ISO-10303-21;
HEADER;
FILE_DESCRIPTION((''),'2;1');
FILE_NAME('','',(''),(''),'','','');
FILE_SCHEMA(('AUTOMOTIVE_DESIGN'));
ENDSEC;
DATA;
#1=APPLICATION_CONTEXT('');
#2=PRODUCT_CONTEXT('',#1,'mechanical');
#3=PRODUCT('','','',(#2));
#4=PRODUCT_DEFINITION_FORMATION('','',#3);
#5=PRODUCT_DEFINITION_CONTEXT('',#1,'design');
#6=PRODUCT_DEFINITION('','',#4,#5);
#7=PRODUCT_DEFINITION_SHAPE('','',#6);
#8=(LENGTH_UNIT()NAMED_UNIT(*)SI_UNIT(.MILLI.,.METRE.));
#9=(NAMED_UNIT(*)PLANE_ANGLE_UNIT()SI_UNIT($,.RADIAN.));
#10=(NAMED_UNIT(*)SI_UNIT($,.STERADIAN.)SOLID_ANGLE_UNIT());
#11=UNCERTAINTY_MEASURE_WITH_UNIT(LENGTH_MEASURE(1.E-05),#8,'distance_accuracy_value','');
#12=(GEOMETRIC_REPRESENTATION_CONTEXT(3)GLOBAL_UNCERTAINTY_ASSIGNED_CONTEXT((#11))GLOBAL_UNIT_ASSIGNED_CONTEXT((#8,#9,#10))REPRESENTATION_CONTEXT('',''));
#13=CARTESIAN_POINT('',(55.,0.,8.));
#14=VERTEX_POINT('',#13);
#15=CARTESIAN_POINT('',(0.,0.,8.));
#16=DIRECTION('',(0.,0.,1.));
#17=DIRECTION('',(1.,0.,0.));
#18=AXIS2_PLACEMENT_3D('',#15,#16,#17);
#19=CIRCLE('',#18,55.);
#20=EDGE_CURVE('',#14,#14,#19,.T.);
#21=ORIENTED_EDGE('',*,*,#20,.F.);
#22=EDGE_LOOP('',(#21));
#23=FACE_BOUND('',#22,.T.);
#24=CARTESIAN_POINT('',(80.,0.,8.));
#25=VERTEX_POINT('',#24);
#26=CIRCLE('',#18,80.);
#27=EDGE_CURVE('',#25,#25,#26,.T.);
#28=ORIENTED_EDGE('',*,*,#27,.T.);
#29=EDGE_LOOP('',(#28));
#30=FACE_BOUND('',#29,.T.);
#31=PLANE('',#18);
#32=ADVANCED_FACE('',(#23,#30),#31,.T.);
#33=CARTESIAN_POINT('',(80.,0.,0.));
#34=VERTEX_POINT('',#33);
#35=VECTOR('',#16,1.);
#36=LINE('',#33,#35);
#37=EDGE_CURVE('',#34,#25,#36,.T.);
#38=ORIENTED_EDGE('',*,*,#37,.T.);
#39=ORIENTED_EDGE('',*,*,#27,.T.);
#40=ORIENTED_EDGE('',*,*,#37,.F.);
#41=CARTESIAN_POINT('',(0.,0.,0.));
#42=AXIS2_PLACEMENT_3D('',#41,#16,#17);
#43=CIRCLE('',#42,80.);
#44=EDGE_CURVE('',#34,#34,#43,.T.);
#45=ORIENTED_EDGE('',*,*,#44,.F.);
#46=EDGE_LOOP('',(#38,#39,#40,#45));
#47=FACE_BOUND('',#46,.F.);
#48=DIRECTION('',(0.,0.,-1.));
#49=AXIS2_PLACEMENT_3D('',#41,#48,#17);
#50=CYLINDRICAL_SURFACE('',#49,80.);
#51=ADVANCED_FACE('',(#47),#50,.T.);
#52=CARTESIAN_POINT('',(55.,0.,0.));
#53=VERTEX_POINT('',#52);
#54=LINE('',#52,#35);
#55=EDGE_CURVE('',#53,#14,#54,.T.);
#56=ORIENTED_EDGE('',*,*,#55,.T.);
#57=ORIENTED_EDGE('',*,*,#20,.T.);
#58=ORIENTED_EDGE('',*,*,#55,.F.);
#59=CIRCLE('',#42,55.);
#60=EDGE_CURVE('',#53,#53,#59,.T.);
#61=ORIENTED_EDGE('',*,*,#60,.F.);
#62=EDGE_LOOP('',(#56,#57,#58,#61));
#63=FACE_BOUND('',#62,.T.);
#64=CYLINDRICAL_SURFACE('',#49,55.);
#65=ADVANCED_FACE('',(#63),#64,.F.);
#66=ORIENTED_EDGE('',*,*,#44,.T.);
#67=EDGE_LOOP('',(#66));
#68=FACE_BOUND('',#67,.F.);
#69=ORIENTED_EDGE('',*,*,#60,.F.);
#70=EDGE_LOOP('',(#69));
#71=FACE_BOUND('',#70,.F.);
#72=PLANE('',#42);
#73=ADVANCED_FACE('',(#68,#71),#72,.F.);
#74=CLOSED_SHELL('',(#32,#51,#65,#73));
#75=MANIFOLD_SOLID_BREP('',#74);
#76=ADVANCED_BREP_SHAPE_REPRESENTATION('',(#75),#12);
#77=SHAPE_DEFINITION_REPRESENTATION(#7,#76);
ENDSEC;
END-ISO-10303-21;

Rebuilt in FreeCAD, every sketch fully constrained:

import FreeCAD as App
import Part
import Sketcher

doc = App.newDocument("Part")
params = doc.addObject("Spreadsheet::Sheet", "Params")
for row, (alias, value) in enumerate([
    ("sketch1_diameter", "160 mm"),
    ("sketch1_diameter2", "110 mm"),
    ("pad1_length", "8 mm"),
], start=1):
    params.set(f"A{row}", alias)
    params.set(f"B{row}", "=" + value)
    params.setAlias(f"B{row}", alias)

body = doc.addObject("PartDesign::Body", "Body")

sketch1 = body.newObject("Sketcher::SketchObject", "Sketch")
sketch1.AttachmentSupport = (doc.getObject("XY_Plane"), [""])
sketch1.MapMode = "FlatFace"
sketch1.addGeometry([
    Part.Circle(App.Vector(0, 0, 0), App.Vector(0, 0, 1), 80),
    Part.Circle(App.Vector(0, 0, 0), App.Vector(0, 0, 1), 55),
], False)
sketch1.addConstraint([
    Sketcher.Constraint("Coincident", 0, 3, -1, 1),
    Sketcher.Constraint("Coincident", 1, 3, -1, 1),
    Sketcher.Constraint("Diameter", 0, 160.0),
    Sketcher.Constraint("Diameter", 1, 110.0),
])
sketch1.setExpression("Constraints[2]", "Params.sketch1_diameter")
sketch1.setExpression("Constraints[3]", "Params.sketch1_diameter2")
pad1 = body.newObject("PartDesign::Pad", "Pad")
pad1.Profile = sketch1
pad1.setExpression("Length", "Params.pad1_length")

doc.recompute()
